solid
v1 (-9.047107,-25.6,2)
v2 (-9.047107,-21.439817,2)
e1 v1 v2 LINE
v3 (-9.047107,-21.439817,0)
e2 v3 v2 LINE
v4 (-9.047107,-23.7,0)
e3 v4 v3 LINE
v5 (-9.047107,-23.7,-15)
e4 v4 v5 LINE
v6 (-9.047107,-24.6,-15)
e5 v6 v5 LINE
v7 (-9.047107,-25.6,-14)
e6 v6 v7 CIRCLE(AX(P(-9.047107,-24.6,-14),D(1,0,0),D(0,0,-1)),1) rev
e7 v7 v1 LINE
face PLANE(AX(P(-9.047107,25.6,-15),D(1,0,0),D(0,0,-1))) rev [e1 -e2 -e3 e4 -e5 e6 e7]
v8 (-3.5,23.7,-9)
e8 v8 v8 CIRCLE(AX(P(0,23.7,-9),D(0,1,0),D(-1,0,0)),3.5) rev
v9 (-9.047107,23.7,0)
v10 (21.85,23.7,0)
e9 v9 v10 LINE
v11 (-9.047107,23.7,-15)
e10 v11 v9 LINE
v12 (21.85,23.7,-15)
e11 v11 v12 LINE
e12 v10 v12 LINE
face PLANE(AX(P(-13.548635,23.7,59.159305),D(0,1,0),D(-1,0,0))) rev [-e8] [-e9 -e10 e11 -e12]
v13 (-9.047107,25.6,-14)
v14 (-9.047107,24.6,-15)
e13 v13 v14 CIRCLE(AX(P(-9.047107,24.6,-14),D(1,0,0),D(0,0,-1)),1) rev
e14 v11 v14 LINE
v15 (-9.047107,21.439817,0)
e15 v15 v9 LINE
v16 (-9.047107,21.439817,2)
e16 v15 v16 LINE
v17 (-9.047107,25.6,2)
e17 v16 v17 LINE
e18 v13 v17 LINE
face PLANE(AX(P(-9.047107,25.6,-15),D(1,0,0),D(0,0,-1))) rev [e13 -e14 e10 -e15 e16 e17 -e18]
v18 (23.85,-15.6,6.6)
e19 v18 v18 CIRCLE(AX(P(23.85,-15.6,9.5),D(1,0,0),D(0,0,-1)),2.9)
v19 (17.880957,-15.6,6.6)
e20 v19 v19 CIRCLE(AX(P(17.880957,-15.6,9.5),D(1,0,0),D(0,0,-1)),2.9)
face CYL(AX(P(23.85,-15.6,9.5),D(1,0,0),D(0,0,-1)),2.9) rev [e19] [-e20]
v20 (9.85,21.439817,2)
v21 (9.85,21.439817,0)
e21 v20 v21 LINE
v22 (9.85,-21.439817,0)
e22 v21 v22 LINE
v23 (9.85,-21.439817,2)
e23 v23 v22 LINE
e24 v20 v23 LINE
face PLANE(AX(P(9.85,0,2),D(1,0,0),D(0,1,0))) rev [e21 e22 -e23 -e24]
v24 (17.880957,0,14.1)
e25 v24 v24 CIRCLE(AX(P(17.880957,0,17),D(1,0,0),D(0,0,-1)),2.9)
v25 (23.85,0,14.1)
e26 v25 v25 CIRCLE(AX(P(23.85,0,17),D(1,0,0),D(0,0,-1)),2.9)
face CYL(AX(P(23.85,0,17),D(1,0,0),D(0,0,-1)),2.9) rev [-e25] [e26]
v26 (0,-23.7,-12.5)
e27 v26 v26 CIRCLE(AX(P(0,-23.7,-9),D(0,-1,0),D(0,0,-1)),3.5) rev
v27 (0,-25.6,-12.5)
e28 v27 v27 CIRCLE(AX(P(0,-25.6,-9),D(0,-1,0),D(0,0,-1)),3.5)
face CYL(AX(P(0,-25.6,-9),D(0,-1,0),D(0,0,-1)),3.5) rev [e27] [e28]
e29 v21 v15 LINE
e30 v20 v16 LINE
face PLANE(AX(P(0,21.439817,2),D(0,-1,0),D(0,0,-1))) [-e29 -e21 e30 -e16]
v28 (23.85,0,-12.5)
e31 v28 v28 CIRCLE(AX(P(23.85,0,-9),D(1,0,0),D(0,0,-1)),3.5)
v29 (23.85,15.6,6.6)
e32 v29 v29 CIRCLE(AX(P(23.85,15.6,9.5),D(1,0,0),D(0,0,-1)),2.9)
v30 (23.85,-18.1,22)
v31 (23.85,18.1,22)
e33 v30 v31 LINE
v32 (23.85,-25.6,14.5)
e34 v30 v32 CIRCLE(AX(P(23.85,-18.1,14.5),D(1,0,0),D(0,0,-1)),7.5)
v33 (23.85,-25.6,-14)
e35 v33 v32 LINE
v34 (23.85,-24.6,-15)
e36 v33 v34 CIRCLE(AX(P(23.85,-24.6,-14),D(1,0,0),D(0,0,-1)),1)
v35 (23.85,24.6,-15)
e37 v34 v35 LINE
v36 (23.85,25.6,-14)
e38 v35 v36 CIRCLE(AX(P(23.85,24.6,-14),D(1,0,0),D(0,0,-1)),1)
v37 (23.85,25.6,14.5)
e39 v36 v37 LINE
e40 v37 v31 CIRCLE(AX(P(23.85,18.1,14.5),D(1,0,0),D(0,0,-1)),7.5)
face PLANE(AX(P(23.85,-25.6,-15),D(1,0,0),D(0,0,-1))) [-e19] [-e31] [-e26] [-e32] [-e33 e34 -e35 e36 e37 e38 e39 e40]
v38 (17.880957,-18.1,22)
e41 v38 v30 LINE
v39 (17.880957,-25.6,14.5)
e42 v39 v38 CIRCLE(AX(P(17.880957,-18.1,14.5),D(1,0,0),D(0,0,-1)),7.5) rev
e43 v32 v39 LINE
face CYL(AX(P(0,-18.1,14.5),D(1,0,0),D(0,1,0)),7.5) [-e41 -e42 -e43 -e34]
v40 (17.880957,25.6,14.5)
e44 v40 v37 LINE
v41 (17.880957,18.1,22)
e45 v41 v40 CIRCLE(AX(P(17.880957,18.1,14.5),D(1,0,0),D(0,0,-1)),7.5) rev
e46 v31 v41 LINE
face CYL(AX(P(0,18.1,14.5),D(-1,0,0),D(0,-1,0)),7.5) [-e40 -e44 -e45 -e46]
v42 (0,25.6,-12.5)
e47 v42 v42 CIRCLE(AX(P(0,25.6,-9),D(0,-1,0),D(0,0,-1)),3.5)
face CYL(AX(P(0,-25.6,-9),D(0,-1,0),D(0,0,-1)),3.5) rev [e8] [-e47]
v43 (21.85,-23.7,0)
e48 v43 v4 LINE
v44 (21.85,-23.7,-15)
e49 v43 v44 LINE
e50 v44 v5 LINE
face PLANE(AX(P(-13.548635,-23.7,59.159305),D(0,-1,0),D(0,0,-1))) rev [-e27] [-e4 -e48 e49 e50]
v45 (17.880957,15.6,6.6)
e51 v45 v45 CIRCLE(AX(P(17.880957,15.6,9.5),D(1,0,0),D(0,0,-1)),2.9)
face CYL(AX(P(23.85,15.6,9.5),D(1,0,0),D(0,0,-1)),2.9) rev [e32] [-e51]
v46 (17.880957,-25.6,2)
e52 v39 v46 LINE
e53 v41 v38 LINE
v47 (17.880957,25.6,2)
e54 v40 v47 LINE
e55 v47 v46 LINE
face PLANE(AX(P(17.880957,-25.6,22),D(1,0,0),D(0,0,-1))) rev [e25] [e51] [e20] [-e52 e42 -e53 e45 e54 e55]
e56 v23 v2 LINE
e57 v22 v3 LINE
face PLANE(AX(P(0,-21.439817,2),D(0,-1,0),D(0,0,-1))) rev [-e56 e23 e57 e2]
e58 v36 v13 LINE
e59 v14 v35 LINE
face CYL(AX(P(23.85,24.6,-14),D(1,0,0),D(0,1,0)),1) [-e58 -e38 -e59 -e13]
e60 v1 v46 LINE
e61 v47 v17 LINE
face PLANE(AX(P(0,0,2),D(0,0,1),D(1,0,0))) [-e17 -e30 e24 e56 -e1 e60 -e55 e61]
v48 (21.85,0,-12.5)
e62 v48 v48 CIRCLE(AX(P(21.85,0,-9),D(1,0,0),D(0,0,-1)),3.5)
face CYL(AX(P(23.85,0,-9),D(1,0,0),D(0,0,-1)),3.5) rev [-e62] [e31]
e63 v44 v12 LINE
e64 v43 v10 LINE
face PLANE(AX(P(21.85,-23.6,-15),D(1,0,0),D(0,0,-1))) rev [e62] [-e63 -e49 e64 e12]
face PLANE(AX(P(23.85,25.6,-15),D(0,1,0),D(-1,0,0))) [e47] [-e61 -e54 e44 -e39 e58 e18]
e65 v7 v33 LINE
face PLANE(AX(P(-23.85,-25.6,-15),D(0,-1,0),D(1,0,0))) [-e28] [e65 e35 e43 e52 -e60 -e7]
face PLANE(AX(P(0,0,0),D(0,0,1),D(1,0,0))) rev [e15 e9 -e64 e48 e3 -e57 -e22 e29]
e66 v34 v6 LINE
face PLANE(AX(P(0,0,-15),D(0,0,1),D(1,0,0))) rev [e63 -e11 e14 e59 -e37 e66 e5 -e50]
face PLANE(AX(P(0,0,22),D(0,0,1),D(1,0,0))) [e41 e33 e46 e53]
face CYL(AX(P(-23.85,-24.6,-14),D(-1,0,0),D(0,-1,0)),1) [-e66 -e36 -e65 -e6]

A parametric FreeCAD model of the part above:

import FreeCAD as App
import Part
import Sketcher
from FreeCAD import Vector


def edges_at(feature, points):
    """Names of the edges that pass closest to the given points."""
    edges = feature.Shape.Edges
    near = lambda p: min(range(len(edges)), key=lambda i: edges[i].distToShape(Part.Vertex(*p))[0])
    return sorted({f"Edge{near(p) + 1}" for p in points})

doc = App.newDocument("Part")
body = doc.addObject("PartDesign::Body", "Body")

# Sketch on XY plane
sketch1 = body.newObject("Sketcher::SketchObject", "Sketch")
sketch1.AttachmentSupport = (doc.getObject("XY_Plane"), [""])
sketch1.MapMode = "FlatFace"
sketch1.addGeometry([
    Part.LineSegment(Vector(-22, 24, 0), Vector(-22, -24, 0)),  # 0
    Part.LineSegment(Vector(-22, -24, 0), Vector(22, -24, 0)),  # 1
    Part.LineSegment(Vector(22, -24, 0), Vector(22, 24, 0)),  # 2
    Part.LineSegment(Vector(22, 24, 0), Vector(-22, 24, 0)),  # 3
    Part.LineSegment(Vector(10, -21, 0), Vector(-20, -21, 0)),  # 4
    Part.LineSegment(Vector(-20, -21, 0), Vector(-20, 21, 0)),  # 5
    Part.LineSegment(Vector(-20, 21, 0), Vector(10, 21, 0)),  # 6
    Part.LineSegment(Vector(10, 21, 0), Vector(10, -21, 0)),  # 7
], False)
sketch1.addConstraint([
    Sketcher.Constraint("Coincident", 0, 2, 1, 1),
    Sketcher.Constraint("Coincident", 1, 2, 2, 1),
    Sketcher.Constraint("Coincident", 2, 2, 3, 1),
    Sketcher.Constraint("Coincident", 3, 2, 0, 1),
    Sketcher.Constraint("Coincident", 4, 2, 5, 1),
    Sketcher.Constraint("Coincident", 5, 2, 6, 1),
    Sketcher.Constraint("Coincident", 6, 2, 7, 1),
    Sketcher.Constraint("Coincident", 7, 2, 4, 1),
    Sketcher.Constraint("Vertical", 0),
    Sketcher.Constraint("Horizontal", 1),
    Sketcher.Constraint("Vertical", 2),
    Sketcher.Constraint("Horizontal", 3),
    Sketcher.Constraint("Horizontal", 4),
    Sketcher.Constraint("Vertical", 5),
    Sketcher.Constraint("Horizontal", 6),
    Sketcher.Constraint("Vertical", 7),
    Sketcher.Constraint("Symmetric", 0, 2, 2, 2, -1, 1),
    Sketcher.Constraint("DistanceX", 1, 1, 1, 2, 43.7),
    Sketcher.Constraint("DistanceX", 4, 2, 4, 1, 29.7),
    Sketcher.Constraint("DistanceY", 0, 2, 0, 1, 47.2),
    Sketcher.Constraint("DistanceX", 0, 2, 4, 2, 2.0),
    Sketcher.Constraint("DistanceY", 5, 1, 5, 2, 42.879634),
    Sketcher.Constraint("DistanceY", 4, 2, -1, 1, 21.439817),
])
pad1 = body.newObject("PartDesign::Pad", "Pad")
pad1.Profile = sketch1
pad1.Length = 2

# Sketch on XY plane
sketch2 = body.newObject("Sketcher::SketchObject", "Sketch001")
sketch2.AttachmentSupport = (doc.getObject("XY_Plane"), [""])
sketch2.MapMode = "FlatFace"
sketch2.AttachmentOffset = App.Placement(Vector(0, 0, 2), App.Rotation())
sketch2.addGeometry([
    Part.LineSegment(Vector(-24, 26, 0), Vector(-24, -26, 0)),  # 0
    Part.LineSegment(Vector(-24, -26, 0), Vector(24, -26, 0)),  # 1
    Part.LineSegment(Vector(24, -26, 0), Vector(24, 26, 0)),  # 2
    Part.LineSegment(Vector(24, 26, 0), Vector(-24, 26, 0)),  # 3
    Part.LineSegment(Vector(22, -24, 0), Vector(-22, -24, 0)),  # 4
    Part.LineSegment(Vector(-22, -24, 0), Vector(-22, 24, 0)),  # 5
    Part.LineSegment(Vector(-22, 24, 0), Vector(22, 24, 0)),  # 6
    Part.LineSegment(Vector(22, 24, 0), Vector(22, -24, 0)),  # 7
], False)
sketch2.addConstraint([
    Sketcher.Constraint("Coincident", 0, 2, 1, 1),
    Sketcher.Constraint("Coincident", 1, 2, 2, 1),
    Sketcher.Constraint("Coincident", 2, 2, 3, 1),
    Sketcher.Constraint("Coincident", 3, 2, 0, 1),
    Sketcher.Constraint("Coincident", 4, 2, 5, 1),
    Sketcher.Constraint("Coincident", 5, 2, 6, 1),
    Sketcher.Constraint("Coincident", 6, 2, 7, 1),
    Sketcher.Constraint("Coincident", 7, 2, 4, 1),
    Sketcher.Constraint("Vertical", 0),
    Sketcher.Constraint("Horizontal", 1),
    Sketcher.Constraint("Vertical", 2),
    Sketcher.Constraint("Horizontal", 3),
    Sketcher.Constraint("Horizontal", 4),
    Sketcher.Constraint("Vertical", 5),
    Sketcher.Constraint("Horizontal", 6),
    Sketcher.Constraint("Vertical", 7),
    Sketcher.Constraint("Symmetric", 0, 2, 2, 2, -1, 1),
    Sketcher.Constraint("Symmetric", 4, 2, 6, 2, -1, 1),
    Sketcher.Constraint("DistanceX", 1, 1, 1, 2, 47.7),
    Sketcher.Constraint("DistanceX", 4, 2, 4, 1, 43.7),
    Sketcher.Constraint("DistanceY", 0, 2, 0, 1, 51.2),
    Sketcher.Constraint("DistanceY", 5, 1, 5, 2, 47.2),
])
pad2 = body.newObject("PartDesign::Pad", "Pad001")
pad2.Profile = sketch2
pad2.Length = 17
pad2.Reversed = True

# Sketch on XZ plane
sketch3 = body.newObject("Sketcher::SketchObject", "Sketch002")
sketch3.AttachmentSupport = (doc.getObject("XZ_Plane"), [""])
sketch3.MapMode = "FlatFace"
sketch3.AttachmentOffset = App.Placement(Vector(0, 0, 25.6), App.Rotation())
sketch3.addGeometry(Part.Circle(Vector(0, -9, 0), Vector(0, 0, 1), 3.5), False)
sketch3.addConstraint([
    Sketcher.Constraint("PointOnObject", 0, 3, -2),
    Sketcher.Constraint("Diameter", 0, 7.0),
    Sketcher.Constraint("DistanceY", 0, 3, -1, 1, 9.0),
])
doc.recompute()
hole = body.newObject("PartDesign::Hole", "Hole")
hole.Profile = sketch3
hole.ThreadType = "None"
hole.Diameter = 7
hole.DepthType = "ThroughAll"

# Sketch on YZ plane
sketch4 = body.newObject("Sketcher::SketchObject", "Sketch003")
sketch4.AttachmentSupport = (doc.getObject("YZ_Plane"), [""])
sketch4.MapMode = "FlatFace"
sketch4.AttachmentOffset = App.Placement(Vector(0, 0, 23.85), App.Rotation())
sketch4.addGeometry(Part.Circle(Vector(0, -9, 0), Vector(0, 0, 1), 3.5), False)
sketch4.addConstraint([
    Sketcher.Constraint("PointOnObject", 0, 3, -2),
    Sketcher.Constraint("Diameter", 0, 7.0),
    Sketcher.Constraint("DistanceY", 0, 3, -1, 1, 9.0),
])
doc.recompute()
hole2 = body.newObject("PartDesign::Hole", "Hole001")
hole2.Profile = sketch4
hole2.ThreadType = "None"
hole2.Diameter = 7
hole2.DepthType = "ThroughAll"

# Sketch on XY plane
sketch5 = body.newObject("Sketcher::SketchObject", "Sketch004")
sketch5.AttachmentSupport = (doc.getObject("XY_Plane"), [""])
sketch5.MapMode = "FlatFace"
sketch5.AttachmentOffset = App.Placement(Vector(0, 0, 2), App.Rotation())
sketch5.addGeometry([
    Part.LineSegment(Vector(18, 26, 0), Vector(18, -26, 0)),
    Part.LineSegment(Vector(18, -26, 0), Vector(24, -26, 0)),
    Part.LineSegment(Vector(24, -26, 0), Vector(24, 26, 0)),
    Part.LineSegment(Vector(24, 26, 0), Vector(18, 26, 0)),
], False)
sketch5.addConstraint([
    Sketcher.Constraint("Coincident", 0, 2, 1, 1),
    Sketcher.Constraint("Coincident", 1, 2, 2, 1),
    Sketcher.Constraint("Coincident", 2, 2, 3, 1),
    Sketcher.Constraint("Coincident", 3, 2, 0, 1),
    Sketcher.Constraint("Vertical", 0),
    Sketcher.Constraint("Horizontal", 1),
    Sketcher.Constraint("Vertical", 2),
    Sketcher.Constraint("Horizontal", 3),
    Sketcher.Constraint("DistanceY", 0, 2, 0, 1, 51.2),
    Sketcher.Constraint("DistanceY", 0, 2, -1, 1, 25.6),
    Sketcher.Constraint("DistanceX", -1, 1, 1, 2, 23.85),
    Sketcher.Constraint("DistanceX", 1, 1, 1, 2, 5.969043),
])
pad3 = body.newObject("PartDesign::Pad", "Pad002")
pad3.Profile = sketch5
pad3.Length = 20

# Sketch on YZ plane
sketch6 = body.newObject("Sketcher::SketchObject", "Sketch005")
sketch6.AttachmentSupport = (doc.getObject("YZ_Plane"), [""])
sketch6.MapMode = "FlatFace"
sketch6.AttachmentOffset = App.Placement(Vector(0, 0, 23.85), App.Rotation())
sketch6.addGeometry([
    Part.Circle(Vector(-15.6, 9.5, 0), Vector(0, 0, 1), 2.9),
    Part.Circle(Vector(15.6, 9.5, 0), Vector(0, 0, 1), 2.9),
    Part.Circle(Vector(0, 17, 0), Vector(0, 0, 1), 2.9),
], False)
sketch6.addConstraint([
    Sketcher.Constraint("Equal", 0, 1),
    Sketcher.Constraint("Equal", 1, 2),
    Sketcher.Constraint("Symmetric", 0, 3, 1, 3, -2),
    Sketcher.Constraint("PointOnObject", 2, 3, -2),
    Sketcher.Constraint("Diameter", 0, 5.8),
    Sketcher.Constraint("DistanceY", -1, 1, 2, 3, 17.0),
    Sketcher.Constraint("DistanceX", 0, 3, -1, 1, 15.6),
    Sketcher.Constraint("DistanceY", -1, 1, 0, 3, 9.5),
])
doc.recompute()
hole3 = body.newObject("PartDesign::Hole", "Hole002")
hole3.Profile = sketch6
hole3.ThreadType = "None"
hole3.Diameter = 5.8
hole3.DepthType = "ThroughAll"
doc.recompute()

fillet = body.newObject("PartDesign::Fillet", "Fillet")
fillet.Base = (hole3, edges_at(hole3, [(20.865, 25.6, 22), (20.865, -25.6, 22)]))
fillet.Radius = 7.5
doc.recompute()

fillet2 = body.newObject("PartDesign::Fillet", "Fillet001")
fillet2.Base = (fillet, edges_at(fillet, [(0, 25.6, -15), (0, -25.6, -15)]))
fillet2.Radius = 1

# Sketch on XY plane
sketch7 = body.newObject("Sketcher::SketchObject", "Sketch006")
sketch7.AttachmentSupport = (doc.getObject("XY_Plane"), [""])
sketch7.MapMode = "FlatFace"
sketch7.AttachmentOffset = App.Placement(Vector(0, 0, 2), App.Rotation())
sketch7.addGeometry([
    Part.LineSegment(Vector(-24, 26, 0), Vector(-24, -26, 0)),
    Part.LineSegment(Vector(-24, -26, 0), Vector(-9, -26, 0)),
    Part.LineSegment(Vector(-9, -26, 0), Vector(-9, 26, 0)),
    Part.LineSegment(Vector(-9, 26, 0), Vector(-24, 26, 0)),
], False)
sketch7.addConstraint([
    Sketcher.Constraint("Coincident", 0, 2, 1, 1),
    Sketcher.Constraint("Coincident", 1, 2, 2, 1),
    Sketcher.Constraint("Coincident", 2, 2, 3, 1),
    Sketcher.Constraint("Coincident", 3, 2, 0, 1),
    Sketcher.Constraint("Vertical", 0),
    Sketcher.Constraint("Horizontal", 1),
    Sketcher.Constraint("Vertical", 2),
    Sketcher.Constraint("Horizontal", 3),
    Sketcher.Constraint("DistanceY", 0, 2, 0, 1, 51.2),
    Sketcher.Constraint("DistanceY", 0, 2, -1, 1, 25.6),
    Sketcher.Constraint("DistanceX", 0, 2, -1, 1, 23.85),
    Sketcher.Constraint("DistanceX", 1, 1, 1, 2, 14.802893),
])
pocket1 = body.newObject("PartDesign::Pocket", "Pocket")
pocket1.Profile = sketch7
pocket1.Type = "ThroughAll"

# Sketch on XY plane
sketch8 = body.newObject("Sketcher::SketchObject", "Sketch007")
sketch8.AttachmentSupport = (doc.getObject("XY_Plane"), [""])
sketch8.MapMode = "FlatFace"
sketch8.AttachmentOffset = App.Placement(Vector(0, 0, -15), App.Rotation())
sketch8.addGeometry([
    Part.LineSegment(Vector(22, 24, 0), Vector(22, -24, 0)),
    Part.LineSegment(Vector(22, -24, 0), Vector(-14, -24, 0)),
    Part.LineSegment(Vector(-14, -24, 0), Vector(-14, 24, 0)),
    Part.LineSegment(Vector(-14, 24, 0), Vector(22, 24, 0)),
], False)
sketch8.addConstraint([
    Sketcher.Constraint("Coincident", 0, 2, 1, 1),
    Sketcher.Constraint("Coincident", 1, 2, 2, 1),
    Sketcher.Constraint("Coincident", 2, 2, 3, 1),
    Sketcher.Constraint("Coincident", 3, 2, 0, 1),
    Sketcher.Constraint("Vertical", 0),
    Sketcher.Constraint("Horizontal", 1),
    Sketcher.Constraint("Vertical", 2),
    Sketcher.Constraint("Horizontal", 3),
    Sketcher.Constraint("DistanceY", 0, 2, 0, 1, 47.4),
    Sketcher.Constraint("DistanceY", 0, 2, -1, 1, 23.7),
    Sketcher.Constraint("DistanceX", -1, 1, 0, 2, 21.85),
    Sketcher.Constraint("DistanceX", 1, 2, 1, 1, 35.398635),
])
pocket2 = body.newObject("PartDesign::Pocket", "Pocket001")
pocket2.Profile = sketch8
pocket2.Length = 15
pocket2.Reversed = True

doc.recompute()
